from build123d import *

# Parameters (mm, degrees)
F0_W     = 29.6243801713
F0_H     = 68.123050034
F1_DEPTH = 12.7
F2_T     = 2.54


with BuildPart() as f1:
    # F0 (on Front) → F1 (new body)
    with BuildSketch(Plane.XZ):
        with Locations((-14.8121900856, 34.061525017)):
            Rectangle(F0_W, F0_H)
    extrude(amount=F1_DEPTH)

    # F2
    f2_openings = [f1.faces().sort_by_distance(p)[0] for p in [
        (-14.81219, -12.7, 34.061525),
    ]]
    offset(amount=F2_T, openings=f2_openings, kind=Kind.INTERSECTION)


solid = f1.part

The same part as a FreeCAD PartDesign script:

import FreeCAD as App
import Part
import Sketcher
from FreeCAD import Vector
Q = App.Units.Quantity


def faces_at(feature, points):
    """Names of the faces that lie closest to the given points."""
    faces = feature.Shape.Faces
    near = lambda p: min(range(len(faces)), key=lambda i: faces[i].distToShape(Part.Vertex(*p))[0])
    return sorted({f"Face{near(p) + 1}" for p in points})


def add_polygon(sketch, points):
    """Adds a closed chain of lines whose ends are joined by coincident constraints."""
    first, n = sketch.GeometryCount, len(points)
    for a, b in zip(points, points[1:] + points[:1]):
        sketch.addGeometry(Part.LineSegment(App.Vector(*a, 0), App.Vector(*b, 0)), False)
    for i in range(n):
        sketch.addConstraint(Sketcher.Constraint("Coincident", first + i, 2, first + (i + 1) % n, 1))

doc = App.newDocument("Part")
body = doc.addObject("PartDesign::Body", "Body")

# Sketch on XZ plane
sketch1 = body.newObject("Sketcher::SketchObject", "Sketch")
sketch1.AttachmentSupport = (doc.getObject("XZ_Plane"), [""])
sketch1.MapMode = "FlatFace"
add_polygon(sketch1, [(-29.62438, 68.12305), (-29.62438, 0), (0, 0), (0, 68.12305)])  # lines 0-3
sketch1.addConstraint([
    Sketcher.Constraint("Vertical", 0),
    Sketcher.Constraint("Horizontal", 1),
    Sketcher.Constraint("Vertical", 2),
    Sketcher.Constraint("Horizontal", 3),
    Sketcher.Constraint("Coincident", 1, 2, -1, 1),
    Sketcher.Constraint("DistanceX", 1, 1, 1, 2, Q("29.62438 mm")),
    Sketcher.Constraint("DistanceY", 0, 2, 0, 1, Q("68.12305 mm")),
])
pad1 = body.newObject("PartDesign::Pad", "Pad")
pad1.Profile = sketch1
pad1.Length = Q("0.5 in")
doc.recompute()

thickness = body.newObject("PartDesign::Thickness", "Thickness")
thickness.Base = (pad1, faces_at(pad1, [(-14.812, -12.7, 34.062)]))
thickness.Value = Q("0.1 in")
thickness.Reversed = False
thickness.Join = "Intersection"

doc.recompute()
